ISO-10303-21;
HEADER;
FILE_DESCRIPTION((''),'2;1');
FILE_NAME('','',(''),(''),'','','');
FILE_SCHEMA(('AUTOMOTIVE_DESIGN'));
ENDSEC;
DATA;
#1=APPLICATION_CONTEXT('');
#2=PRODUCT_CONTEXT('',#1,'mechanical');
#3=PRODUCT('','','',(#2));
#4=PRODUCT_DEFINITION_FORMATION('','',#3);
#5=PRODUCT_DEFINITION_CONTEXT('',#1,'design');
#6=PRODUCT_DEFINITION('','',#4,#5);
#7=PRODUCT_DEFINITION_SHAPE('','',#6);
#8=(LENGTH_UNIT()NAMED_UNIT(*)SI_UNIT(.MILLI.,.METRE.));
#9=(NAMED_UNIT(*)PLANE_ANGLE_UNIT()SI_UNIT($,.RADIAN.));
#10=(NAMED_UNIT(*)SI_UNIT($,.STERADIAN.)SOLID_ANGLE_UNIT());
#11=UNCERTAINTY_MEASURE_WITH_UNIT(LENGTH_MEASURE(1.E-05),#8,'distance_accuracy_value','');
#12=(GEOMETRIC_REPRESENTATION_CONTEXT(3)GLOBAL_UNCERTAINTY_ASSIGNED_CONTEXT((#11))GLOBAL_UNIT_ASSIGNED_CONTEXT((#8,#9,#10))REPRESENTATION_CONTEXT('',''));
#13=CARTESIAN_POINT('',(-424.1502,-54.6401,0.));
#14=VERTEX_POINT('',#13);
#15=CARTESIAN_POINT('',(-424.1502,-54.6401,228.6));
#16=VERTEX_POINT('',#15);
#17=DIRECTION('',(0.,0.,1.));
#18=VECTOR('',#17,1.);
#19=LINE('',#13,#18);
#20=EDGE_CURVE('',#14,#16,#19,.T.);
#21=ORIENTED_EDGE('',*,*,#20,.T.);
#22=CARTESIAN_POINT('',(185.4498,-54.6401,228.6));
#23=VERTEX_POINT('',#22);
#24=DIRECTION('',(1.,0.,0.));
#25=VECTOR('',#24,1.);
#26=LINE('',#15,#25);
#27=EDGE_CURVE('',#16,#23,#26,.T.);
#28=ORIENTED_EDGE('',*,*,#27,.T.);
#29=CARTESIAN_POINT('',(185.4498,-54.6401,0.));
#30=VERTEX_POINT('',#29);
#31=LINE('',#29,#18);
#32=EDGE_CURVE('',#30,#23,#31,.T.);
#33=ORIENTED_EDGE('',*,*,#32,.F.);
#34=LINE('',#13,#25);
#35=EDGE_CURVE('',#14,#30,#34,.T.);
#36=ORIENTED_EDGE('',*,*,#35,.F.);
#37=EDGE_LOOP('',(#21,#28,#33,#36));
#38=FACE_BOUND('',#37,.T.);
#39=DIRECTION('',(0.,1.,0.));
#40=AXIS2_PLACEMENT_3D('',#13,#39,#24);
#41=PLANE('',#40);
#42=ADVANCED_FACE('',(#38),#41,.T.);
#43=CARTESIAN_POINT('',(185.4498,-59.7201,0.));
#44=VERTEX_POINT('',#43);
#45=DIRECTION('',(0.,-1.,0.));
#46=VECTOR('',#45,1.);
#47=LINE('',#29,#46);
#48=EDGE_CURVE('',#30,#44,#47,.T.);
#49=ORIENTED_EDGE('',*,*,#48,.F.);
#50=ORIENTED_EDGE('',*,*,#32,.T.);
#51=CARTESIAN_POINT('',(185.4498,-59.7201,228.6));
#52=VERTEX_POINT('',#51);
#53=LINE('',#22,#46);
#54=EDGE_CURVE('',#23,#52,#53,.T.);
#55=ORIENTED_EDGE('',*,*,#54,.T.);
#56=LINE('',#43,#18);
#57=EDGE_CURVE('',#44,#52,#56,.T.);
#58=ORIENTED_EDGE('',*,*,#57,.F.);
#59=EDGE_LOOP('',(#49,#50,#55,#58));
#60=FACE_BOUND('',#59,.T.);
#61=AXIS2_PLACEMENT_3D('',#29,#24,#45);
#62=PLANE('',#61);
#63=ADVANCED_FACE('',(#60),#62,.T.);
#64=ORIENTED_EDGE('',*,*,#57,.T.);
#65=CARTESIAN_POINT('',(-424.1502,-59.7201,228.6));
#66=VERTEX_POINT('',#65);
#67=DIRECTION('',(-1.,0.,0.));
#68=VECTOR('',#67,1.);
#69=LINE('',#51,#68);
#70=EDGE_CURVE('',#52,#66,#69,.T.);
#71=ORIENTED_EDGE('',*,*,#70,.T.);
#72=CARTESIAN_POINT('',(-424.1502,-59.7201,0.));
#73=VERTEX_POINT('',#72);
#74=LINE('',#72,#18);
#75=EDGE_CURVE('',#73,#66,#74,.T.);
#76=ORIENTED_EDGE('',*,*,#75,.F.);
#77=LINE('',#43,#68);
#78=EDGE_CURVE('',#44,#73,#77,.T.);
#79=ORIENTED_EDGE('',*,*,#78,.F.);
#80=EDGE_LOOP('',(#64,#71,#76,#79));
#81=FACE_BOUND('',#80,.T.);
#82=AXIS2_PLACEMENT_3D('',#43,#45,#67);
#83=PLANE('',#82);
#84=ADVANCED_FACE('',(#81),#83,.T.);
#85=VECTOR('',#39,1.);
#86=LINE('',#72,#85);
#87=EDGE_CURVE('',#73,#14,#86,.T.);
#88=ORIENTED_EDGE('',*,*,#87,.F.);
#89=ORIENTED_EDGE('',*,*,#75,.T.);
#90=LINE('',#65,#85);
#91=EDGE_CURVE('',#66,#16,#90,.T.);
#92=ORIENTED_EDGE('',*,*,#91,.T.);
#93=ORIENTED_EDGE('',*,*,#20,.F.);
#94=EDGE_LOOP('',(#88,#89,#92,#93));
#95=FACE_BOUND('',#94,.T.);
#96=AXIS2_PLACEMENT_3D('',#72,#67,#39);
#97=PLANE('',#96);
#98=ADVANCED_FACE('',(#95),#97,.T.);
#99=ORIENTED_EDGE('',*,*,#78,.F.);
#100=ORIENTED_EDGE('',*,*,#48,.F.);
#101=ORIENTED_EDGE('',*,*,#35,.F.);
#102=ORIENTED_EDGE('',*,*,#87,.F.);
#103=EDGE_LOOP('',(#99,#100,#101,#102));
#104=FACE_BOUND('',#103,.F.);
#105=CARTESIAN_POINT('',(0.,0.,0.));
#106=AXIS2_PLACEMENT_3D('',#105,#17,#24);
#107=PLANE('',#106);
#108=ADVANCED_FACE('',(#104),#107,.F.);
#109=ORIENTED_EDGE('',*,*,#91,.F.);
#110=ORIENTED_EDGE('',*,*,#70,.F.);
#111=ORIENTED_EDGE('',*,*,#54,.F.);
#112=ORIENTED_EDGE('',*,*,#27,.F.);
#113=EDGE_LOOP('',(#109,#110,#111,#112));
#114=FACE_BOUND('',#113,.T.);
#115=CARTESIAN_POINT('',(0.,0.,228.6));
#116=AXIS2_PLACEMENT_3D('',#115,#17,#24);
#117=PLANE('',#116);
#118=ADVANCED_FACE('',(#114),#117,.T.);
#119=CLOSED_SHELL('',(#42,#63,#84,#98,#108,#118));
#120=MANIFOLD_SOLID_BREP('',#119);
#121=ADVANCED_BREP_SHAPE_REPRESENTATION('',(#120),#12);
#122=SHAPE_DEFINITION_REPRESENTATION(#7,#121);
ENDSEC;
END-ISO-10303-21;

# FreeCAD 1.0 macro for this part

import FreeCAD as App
import Part
import Sketcher
Q = App.Units.Quantity

doc = App.newDocument("Part")
body = doc.addObject("PartDesign::Body", "Body")

# Sketch on XY plane
sketch1 = body.newObject("Sketcher::SketchObject", "Sketch")
sketch1.AttachmentSupport = (doc.getObject("XY_Plane"), [""])
sketch1.MapMode = "FlatFace"
sketch1.addGeometry([
    Part.LineSegment(App.Vector(-424, -60, 0), App.Vector(185, -60, 0)),
    Part.LineSegment(App.Vector(185, -60, 0), App.Vector(185, -55, 0)),
    Part.LineSegment(App.Vector(185, -55, 0), App.Vector(-424, -55, 0)),
    Part.LineSegment(App.Vector(-424, -55, 0), App.Vector(-424, -60, 0)),
], False)
sketch1.addConstraint([
    Sketcher.Constraint("Coincident", 0, 2, 1, 1),
    Sketcher.Constraint("Coincident", 1, 2, 2, 1),
    Sketcher.Constraint("Coincident", 2, 2, 3, 1),
    Sketcher.Constraint("Coincident", 3, 2, 0, 1),
    Sketcher.Constraint("Horizontal", 0),
    Sketcher.Constraint("Vertical", 1),
    Sketcher.Constraint("Horizontal", 2),
    Sketcher.Constraint("Vertical", 3),
    Sketcher.Constraint("DistanceX", 0, 1, 0, 2, Q("24 in")),
    Sketcher.Constraint("DistanceY", 1, 1, 1, 2, Q("0.2 in")),
    Sketcher.Constraint("DistanceX", -1, 1, 0, 2, Q("185.4498 mm")),
    Sketcher.Constraint("DistanceY", 0, 2, -1, 1, Q("59.72 mm")),
])
pad1 = body.newObject("PartDesign::Pad", "Pad")
pad1.Profile = sketch1
pad1.Length = Q("9 in")

doc.recompute()
